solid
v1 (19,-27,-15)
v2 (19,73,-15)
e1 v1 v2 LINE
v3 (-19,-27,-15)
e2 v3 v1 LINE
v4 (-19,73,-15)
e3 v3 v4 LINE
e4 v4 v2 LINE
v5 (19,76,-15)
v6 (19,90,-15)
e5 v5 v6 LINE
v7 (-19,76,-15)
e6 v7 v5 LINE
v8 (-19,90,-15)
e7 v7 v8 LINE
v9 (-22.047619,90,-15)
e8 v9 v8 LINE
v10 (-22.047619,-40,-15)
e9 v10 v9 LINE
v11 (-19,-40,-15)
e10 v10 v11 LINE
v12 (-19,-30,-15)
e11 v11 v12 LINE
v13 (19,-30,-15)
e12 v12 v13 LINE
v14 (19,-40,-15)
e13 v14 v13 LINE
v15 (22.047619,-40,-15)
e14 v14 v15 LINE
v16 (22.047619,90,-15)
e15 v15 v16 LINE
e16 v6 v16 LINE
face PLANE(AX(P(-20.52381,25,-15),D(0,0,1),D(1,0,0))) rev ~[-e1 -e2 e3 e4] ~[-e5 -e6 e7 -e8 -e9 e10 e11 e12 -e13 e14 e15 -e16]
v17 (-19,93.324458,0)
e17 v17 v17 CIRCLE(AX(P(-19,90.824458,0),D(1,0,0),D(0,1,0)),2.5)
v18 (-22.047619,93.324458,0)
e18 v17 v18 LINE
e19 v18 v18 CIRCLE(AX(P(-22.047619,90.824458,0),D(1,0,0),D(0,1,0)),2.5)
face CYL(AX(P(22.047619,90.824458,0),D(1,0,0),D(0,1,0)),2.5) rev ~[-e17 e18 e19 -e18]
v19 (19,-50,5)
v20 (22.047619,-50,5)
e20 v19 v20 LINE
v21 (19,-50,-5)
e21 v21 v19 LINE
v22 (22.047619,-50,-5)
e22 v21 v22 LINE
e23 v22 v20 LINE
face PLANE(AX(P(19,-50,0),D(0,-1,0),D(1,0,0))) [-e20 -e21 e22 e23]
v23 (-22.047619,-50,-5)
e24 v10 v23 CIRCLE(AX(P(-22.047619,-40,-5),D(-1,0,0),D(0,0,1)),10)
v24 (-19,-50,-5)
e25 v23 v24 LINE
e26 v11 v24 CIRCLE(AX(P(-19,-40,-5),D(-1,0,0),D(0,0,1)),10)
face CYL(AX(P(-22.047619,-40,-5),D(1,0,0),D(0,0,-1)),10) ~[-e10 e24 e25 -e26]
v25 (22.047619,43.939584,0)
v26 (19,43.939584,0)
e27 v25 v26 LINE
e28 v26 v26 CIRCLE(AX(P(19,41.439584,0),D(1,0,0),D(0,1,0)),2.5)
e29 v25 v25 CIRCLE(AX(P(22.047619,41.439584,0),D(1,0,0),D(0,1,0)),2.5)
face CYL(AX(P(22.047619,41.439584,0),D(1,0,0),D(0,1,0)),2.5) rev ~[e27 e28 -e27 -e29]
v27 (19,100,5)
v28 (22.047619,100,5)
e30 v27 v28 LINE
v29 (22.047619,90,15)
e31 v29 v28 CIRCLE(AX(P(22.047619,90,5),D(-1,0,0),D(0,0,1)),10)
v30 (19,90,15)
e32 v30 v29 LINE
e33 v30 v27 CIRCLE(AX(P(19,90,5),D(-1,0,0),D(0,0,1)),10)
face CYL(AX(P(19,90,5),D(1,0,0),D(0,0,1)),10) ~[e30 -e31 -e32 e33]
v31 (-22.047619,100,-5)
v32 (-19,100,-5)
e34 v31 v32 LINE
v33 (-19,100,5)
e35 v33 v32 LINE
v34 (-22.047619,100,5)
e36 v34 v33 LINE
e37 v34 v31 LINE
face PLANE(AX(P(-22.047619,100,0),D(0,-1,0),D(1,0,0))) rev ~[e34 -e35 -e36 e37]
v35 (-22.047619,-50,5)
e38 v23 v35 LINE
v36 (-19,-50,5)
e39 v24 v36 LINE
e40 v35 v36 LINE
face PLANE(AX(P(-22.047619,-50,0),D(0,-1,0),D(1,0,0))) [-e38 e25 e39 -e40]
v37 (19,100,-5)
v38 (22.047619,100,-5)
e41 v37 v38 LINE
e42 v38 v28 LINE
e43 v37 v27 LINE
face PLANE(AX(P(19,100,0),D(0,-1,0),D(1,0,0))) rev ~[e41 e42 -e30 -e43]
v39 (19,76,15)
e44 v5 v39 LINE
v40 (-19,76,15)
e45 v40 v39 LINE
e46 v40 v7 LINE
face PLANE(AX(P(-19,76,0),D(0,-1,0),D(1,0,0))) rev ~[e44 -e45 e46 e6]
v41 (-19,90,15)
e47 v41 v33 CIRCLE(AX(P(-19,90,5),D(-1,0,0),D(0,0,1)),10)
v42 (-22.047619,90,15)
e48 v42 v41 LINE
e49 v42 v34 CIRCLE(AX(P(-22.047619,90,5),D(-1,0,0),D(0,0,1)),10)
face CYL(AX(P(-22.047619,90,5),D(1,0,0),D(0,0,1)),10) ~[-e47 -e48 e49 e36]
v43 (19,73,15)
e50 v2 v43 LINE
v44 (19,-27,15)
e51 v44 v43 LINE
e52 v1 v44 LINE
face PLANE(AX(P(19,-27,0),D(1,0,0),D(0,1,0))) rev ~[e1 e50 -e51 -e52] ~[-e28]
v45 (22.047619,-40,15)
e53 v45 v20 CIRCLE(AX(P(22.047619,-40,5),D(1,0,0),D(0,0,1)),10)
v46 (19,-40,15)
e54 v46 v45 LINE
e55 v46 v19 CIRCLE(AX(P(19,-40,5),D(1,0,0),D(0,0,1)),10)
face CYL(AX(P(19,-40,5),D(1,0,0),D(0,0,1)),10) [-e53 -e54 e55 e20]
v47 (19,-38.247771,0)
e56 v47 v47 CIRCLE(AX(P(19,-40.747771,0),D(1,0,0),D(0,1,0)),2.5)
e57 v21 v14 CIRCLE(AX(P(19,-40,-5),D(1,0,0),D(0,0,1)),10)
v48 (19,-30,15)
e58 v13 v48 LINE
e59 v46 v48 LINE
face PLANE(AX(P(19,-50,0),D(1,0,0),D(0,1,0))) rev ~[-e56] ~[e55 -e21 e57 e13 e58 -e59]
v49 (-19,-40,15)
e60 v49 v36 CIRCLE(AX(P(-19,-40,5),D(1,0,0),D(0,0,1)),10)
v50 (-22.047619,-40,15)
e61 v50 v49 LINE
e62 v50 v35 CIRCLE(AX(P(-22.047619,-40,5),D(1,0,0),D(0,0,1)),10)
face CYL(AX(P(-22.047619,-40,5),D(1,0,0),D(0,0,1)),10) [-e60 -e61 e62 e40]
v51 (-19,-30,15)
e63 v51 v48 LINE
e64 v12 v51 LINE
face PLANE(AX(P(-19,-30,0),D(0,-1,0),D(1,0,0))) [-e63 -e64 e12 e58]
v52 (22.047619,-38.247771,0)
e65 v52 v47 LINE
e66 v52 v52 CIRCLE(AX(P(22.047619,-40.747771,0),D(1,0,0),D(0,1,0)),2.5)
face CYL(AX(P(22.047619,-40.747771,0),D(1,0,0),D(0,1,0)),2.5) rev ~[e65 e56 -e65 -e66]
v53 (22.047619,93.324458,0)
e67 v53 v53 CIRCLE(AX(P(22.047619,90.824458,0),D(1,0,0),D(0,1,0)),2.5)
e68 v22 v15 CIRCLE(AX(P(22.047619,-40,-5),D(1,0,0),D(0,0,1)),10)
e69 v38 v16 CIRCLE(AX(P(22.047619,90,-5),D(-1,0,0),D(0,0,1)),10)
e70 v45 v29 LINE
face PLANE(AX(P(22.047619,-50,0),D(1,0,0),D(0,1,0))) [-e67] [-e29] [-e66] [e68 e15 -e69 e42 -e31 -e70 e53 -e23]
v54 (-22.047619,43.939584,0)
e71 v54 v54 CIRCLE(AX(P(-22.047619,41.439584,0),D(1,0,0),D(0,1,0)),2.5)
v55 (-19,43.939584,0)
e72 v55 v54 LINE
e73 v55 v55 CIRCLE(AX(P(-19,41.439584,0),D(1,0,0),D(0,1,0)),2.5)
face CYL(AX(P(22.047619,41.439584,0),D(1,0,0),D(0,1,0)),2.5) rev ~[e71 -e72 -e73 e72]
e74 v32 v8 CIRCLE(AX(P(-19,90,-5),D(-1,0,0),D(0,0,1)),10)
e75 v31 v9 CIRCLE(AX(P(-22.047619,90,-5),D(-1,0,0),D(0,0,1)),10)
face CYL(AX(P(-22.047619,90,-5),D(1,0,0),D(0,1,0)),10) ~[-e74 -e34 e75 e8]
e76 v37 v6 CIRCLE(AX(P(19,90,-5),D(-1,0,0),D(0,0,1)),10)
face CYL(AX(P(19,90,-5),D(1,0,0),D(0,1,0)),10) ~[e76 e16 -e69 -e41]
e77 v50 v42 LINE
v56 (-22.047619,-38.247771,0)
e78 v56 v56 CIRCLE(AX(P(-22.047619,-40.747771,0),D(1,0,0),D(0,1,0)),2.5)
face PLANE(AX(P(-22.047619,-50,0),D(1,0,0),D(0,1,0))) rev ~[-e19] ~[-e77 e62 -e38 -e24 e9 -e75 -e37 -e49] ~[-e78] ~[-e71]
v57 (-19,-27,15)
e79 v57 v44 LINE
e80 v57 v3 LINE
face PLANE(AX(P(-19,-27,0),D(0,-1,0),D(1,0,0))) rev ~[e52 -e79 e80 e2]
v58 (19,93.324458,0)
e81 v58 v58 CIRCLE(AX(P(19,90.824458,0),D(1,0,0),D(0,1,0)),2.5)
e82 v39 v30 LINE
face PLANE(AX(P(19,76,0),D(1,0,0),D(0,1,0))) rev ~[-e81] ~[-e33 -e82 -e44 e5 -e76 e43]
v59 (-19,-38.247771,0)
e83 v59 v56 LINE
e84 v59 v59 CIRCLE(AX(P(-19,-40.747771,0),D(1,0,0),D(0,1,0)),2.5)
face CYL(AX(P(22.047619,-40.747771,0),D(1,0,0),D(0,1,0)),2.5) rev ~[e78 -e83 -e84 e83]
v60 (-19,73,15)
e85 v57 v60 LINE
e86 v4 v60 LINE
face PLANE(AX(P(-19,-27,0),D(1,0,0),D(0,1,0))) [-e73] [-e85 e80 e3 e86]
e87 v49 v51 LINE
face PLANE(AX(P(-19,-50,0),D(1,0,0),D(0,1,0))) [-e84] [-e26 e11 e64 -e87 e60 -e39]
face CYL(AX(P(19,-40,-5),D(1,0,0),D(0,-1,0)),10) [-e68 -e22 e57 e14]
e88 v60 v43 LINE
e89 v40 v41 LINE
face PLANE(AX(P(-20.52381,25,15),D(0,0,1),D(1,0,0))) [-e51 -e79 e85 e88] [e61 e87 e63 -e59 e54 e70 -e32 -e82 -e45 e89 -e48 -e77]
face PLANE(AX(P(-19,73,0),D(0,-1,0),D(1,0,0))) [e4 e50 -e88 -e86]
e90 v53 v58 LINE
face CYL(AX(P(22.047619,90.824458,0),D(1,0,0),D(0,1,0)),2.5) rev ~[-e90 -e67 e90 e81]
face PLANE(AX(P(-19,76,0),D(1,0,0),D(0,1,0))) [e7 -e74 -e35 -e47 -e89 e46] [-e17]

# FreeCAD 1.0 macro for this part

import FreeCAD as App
import Part
import Sketcher

V = App.Vector


def edges_at(feature, points):
    """Names of the edges that pass closest to the given points."""
    edges = feature.Shape.Edges
    near = lambda p: min(range(len(edges)), key=lambda i: edges[i].distToShape(Part.Vertex(*p))[0])
    return sorted({f"Edge{near(p) + 1}" for p in points})


def add_polygon(sketch, points):
    """Adds a closed chain of lines whose ends are joined by coincident constraints."""
    first, n = sketch.GeometryCount, len(points)
    for a, b in zip(points, points[1:] + points[:1]):
        sketch.addGeometry(Part.LineSegment(App.Vector(*a, 0), App.Vector(*b, 0)), False)
    for i in range(n):
        sketch.addConstraint(Sketcher.Constraint("Coincident", first + i, 2, first + (i + 1) % n, 1))

doc = App.newDocument("Part")
body = doc.addObject("PartDesign::Body", "Body")

sketch1 = body.newObject("Sketcher::SketchObject", "Sketch")
sketch1.AttachmentSupport = (doc.getObject("XY_Plane"), [""])
sketch1.MapMode = "FlatFace"
add_polygon(sketch1, [(-22, 100), (-22, -50), (-19, -50), (-19, -30), (19, -30), (19, -50), (22, -50), (22, 100), (19, 100), (19, 76), (-19, 76), (-19, 100)])
add_polygon(sketch1, [(-19, -27), (-19, 73), (19, 73), (19, -27)])
sketch1.addConstraint([
    Sketcher.Constraint("Vertical", 0),
    Sketcher.Constraint("Horizontal", 1),
    Sketcher.Constraint("Vertical", 2),
    Sketcher.Constraint("Horizontal", 3),
    Sketcher.Constraint("Vertical", 4),
    Sketcher.Constraint("Horizontal", 5),
    Sketcher.Constraint("Vertical", 6),
    Sketcher.Constraint("Horizontal", 7),
    Sketcher.Constraint("Vertical", 8),
    Sketcher.Constraint("Horizontal", 9),
    Sketcher.Constraint("Vertical", 10),
    Sketcher.Constraint("Horizontal", 11),
    Sketcher.Constraint("Vertical", 12),
    Sketcher.Constraint("Horizontal", 13),
    Sketcher.Constraint("Vertical", 14),
    Sketcher.Constraint("Horizontal", 15),
    Sketcher.Constraint("Symmetric", 1, 2, 4, 2, -2),
    Sketcher.Constraint("Symmetric", 7, 2, 10, 2, -2),
    Sketcher.Constraint("Vertical", 4, 2, 7, 2),
    Sketcher.Constraint("Vertical", 10, 2, 12, 2),
    Sketcher.Constraint("Vertical", 8, 2, 13, 2),
    Sketcher.Constraint("Equal", 1, 5),
    Sketcher.Constraint("DistanceX", 3, 1, 3, 2, 38.0),
    Sketcher.Constraint("DistanceY", 0, 2, 0, 1, 150.0),
    Sketcher.Constraint("DistanceY", 2, 1, 2, 2, 20.0),
    Sketcher.Constraint("DistanceY", 8, 2, 8, 1, 24.0),
    Sketcher.Constraint("DistanceY", 12, 1, 12, 2, 100.0),
    Sketcher.Constraint("DistanceY", 0, 2, -1, 1, 50.0),
    Sketcher.Constraint("DistanceY", -1, 1, 12, 2, 73.0),
    Sketcher.Constraint("DistanceX", 1, 1, 1, 2, 3.047619),
])
pad1 = body.newObject("PartDesign::Pad", "Pad")
pad1.Profile = sketch1
pad1.Length = 30
pad1.Midplane = True
doc.recompute()

fillet = body.newObject("PartDesign::Fillet", "Fillet")
fillet.Base = (pad1, edges_at(pad1, [
    (-20.524, -50, -15),
    (20.524, -50, -15),
    (20.524, -50, 15),
    (-20.524, -50, 15),
    (-20.524, 100, 15),
    (-20.524, 100, -15),
    (20.524, 100, -15),
    (20.524, 100, 15),
]))
fillet.Radius = 10

sketch2 = body.newObject("Sketcher::SketchObject", "Sketch001")
sketch2.AttachmentSupport = (doc.getObject("YZ_Plane"), [""])
sketch2.MapMode = "FlatFace"
sketch2.AttachmentOffset = App.Placement(V(0, 0, 22.047619), App.Rotation())
sketch2.addGeometry([
    Part.Circle(V(41.4, 0, 0), V(0, 0, 1), 2.5),
    Part.Circle(V(-40.7, 0, 0), V(0, 0, 1), 2.5),
], False)
sketch2.addConstraint([
    Sketcher.Constraint("Equal", 0, 1),
    Sketcher.Constraint("PointOnObject", 0, 3, -1),
    Sketcher.Constraint("PointOnObject", 1, 3, -1),
    Sketcher.Constraint("Diameter", 0, 5.0),
    Sketcher.Constraint("DistanceX", 1, 3, -1, 1, 40.747771),
    Sketcher.Constraint("DistanceX", -1, 1, 0, 3, 41.439584),
])
pocket1 = body.newObject("PartDesign::Pocket", "Pocket")
pocket1.Profile = sketch2
pocket1.Length = 61

sketch3 = body.newObject("Sketcher::SketchObject", "Sketch002")
sketch3.AttachmentSupport = (doc.getObject("YZ_Plane"), [""])
sketch3.MapMode = "FlatFace"
sketch3.AttachmentOffset = App.Placement(V(0, 0, 22.047619), App.Rotation())
sketch3.addGeometry(Part.Circle(V(90.8, 0, 0), V(0, 0, 1), 2.5), False)
sketch3.addConstraint([
    Sketcher.Constraint("PointOnObject", 0, 3, -1),
    Sketcher.Constraint("Diameter", 0, 5.0),
    Sketcher.Constraint("DistanceX", -1, 1, 0, 3, 90.824458),
])
pocket2 = body.newObject("PartDesign::Pocket", "Pocket001")
pocket2.Profile = sketch3
pocket2.Length = 55

doc.recompute()
